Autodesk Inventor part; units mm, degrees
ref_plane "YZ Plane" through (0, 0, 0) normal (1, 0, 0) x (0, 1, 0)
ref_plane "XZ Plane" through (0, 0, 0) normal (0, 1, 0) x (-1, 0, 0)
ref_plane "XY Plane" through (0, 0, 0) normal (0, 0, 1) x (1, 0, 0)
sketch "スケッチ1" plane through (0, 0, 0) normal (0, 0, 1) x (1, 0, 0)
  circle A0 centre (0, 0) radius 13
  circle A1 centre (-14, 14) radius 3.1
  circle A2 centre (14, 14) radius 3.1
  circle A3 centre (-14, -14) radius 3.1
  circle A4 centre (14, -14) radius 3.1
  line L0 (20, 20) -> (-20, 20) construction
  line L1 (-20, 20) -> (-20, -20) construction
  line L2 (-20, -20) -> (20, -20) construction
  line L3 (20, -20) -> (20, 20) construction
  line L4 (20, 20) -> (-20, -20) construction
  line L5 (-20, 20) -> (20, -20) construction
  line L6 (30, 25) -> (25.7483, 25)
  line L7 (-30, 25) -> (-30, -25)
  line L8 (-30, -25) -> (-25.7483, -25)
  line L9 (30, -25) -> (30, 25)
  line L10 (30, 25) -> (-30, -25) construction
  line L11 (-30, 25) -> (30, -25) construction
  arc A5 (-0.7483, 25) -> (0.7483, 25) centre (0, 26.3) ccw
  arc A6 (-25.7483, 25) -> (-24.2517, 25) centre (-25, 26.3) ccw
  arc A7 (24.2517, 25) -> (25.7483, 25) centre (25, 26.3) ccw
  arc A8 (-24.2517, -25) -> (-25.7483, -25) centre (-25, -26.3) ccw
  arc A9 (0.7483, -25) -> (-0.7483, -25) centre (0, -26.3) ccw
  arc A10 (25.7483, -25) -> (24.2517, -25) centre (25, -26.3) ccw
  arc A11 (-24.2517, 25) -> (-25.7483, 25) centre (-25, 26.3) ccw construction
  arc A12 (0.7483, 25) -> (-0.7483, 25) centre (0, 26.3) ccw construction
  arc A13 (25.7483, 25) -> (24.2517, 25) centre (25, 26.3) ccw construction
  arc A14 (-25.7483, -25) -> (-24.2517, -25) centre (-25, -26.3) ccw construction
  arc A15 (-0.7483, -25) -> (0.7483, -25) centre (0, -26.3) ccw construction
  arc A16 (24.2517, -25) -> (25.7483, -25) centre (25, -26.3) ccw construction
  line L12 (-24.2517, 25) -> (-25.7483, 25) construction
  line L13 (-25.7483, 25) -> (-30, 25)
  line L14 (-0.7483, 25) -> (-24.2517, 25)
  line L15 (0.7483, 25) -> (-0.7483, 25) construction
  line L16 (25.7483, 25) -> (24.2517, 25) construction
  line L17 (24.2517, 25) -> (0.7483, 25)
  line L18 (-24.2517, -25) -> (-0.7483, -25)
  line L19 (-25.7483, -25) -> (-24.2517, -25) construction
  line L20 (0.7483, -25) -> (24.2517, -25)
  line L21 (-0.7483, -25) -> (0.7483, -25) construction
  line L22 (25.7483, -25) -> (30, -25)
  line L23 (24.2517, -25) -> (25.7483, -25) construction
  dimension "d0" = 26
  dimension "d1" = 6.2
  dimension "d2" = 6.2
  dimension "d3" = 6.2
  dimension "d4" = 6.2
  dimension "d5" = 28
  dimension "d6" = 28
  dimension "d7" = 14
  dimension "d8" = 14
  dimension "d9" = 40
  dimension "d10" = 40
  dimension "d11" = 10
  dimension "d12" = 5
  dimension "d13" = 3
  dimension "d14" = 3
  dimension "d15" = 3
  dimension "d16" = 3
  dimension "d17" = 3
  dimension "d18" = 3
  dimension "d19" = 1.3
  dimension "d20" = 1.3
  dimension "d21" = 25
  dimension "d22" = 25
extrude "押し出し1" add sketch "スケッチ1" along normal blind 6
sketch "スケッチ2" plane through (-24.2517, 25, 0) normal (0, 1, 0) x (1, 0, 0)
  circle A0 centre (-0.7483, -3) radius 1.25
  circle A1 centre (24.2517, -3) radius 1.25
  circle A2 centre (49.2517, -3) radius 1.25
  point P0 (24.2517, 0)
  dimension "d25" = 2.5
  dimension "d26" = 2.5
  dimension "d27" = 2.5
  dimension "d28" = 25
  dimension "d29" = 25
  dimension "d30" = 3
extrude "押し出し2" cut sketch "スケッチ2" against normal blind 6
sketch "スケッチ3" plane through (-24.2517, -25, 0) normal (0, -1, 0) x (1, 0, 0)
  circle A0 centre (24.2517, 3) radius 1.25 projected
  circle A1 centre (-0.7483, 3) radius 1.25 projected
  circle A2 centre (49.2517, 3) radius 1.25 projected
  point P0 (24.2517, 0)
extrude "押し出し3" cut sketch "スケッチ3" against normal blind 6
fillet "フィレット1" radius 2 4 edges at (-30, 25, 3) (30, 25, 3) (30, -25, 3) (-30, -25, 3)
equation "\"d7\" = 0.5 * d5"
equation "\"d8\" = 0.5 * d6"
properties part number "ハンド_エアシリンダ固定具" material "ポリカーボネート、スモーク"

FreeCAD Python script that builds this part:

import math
import FreeCAD as App
import Part
import Sketcher
from FreeCAD import Vector


def edges_at(feature, points):
    """Names of the edges that pass closest to the given points."""
    edges = feature.Shape.Edges
    near = lambda p: min(range(len(edges)), key=lambda i: edges[i].distToShape(Part.Vertex(*p))[0])
    return sorted({f"Edge{near(p) + 1}" for p in points})

doc = App.newDocument("Part")
body = doc.addObject("PartDesign::Body", "Body")

# Sketch on XY plane
sketch1 = body.newObject("Sketcher::SketchObject", "Sketch")
sketch1.AttachmentSupport = (doc.getObject("XY_Plane"), [""])
sketch1.MapMode = "FlatFace"
sketch1.addGeometry([
    Part.LineSegment(Vector(30, -25, 0), Vector(30, 25, 0)),  # 0
    Part.LineSegment(Vector(30, 25, 0), Vector(25.7483, 25, 0)),  # 1
    Part.ArcOfCircle(Part.Circle(Vector(25, 26.3, 0), Vector(0, 0, 1), 1.499984), math.radians(-119.925393), math.radians(-60.074607)),  # 2
    Part.LineSegment(Vector(24.2517, 25, 0), Vector(0.7483, 25, 0)),  # 3
    Part.ArcOfCircle(Part.Circle(Vector(0, 26.3, 0), Vector(0, 0, 1), 1.499984), math.radians(-119.925393), math.radians(-60.074607)),  # 4
    Part.LineSegment(Vector(-0.7483, 25, 0), Vector(-24.2517, 25, 0)),  # 5
    Part.ArcOfCircle(Part.Circle(Vector(-25, 26.3, 0), Vector(0, 0, 1), 1.499984), math.radians(-119.925393), math.radians(-60.074607)),  # 6
    Part.LineSegment(Vector(-25.7483, 25, 0), Vector(-30, 25, 0)),  # 7
    Part.LineSegment(Vector(-30, 25, 0), Vector(-30, -25, 0)),  # 8
    Part.LineSegment(Vector(-30, -25, 0), Vector(-25.7483, -25, 0)),  # 9
    Part.ArcOfCircle(Part.Circle(Vector(-25, -26.3, 0), Vector(0, 0, 1), 1.499984), math.radians(60.074607), math.radians(119.925393)),  # 10
    Part.LineSegment(Vector(-24.2517, -25, 0), Vector(-0.7483, -25, 0)),  # 11
    Part.ArcOfCircle(Part.Circle(Vector(0, -26.3, 0), Vector(0, 0, 1), 1.499984), math.radians(60.074607), math.radians(119.925393)),  # 12
    Part.LineSegment(Vector(0.7483, -25, 0), Vector(24.2517, -25, 0)),  # 13
    Part.ArcOfCircle(Part.Circle(Vector(25, -26.3, 0), Vector(0, 0, 1), 1.499984), math.radians(60.074607), math.radians(119.925393)),  # 14
    Part.LineSegment(Vector(25.7483, -25, 0), Vector(30, -25, 0)),  # 15
    Part.Circle(Vector(-14, -14, 0), Vector(0, 0, 1), 3.1),  # 16
    Part.Circle(Vector(14, -14, 0), Vector(0, 0, 1), 3.1),  # 17
    Part.Circle(Vector(-14, 14, 0), Vector(0, 0, 1), 3.1),  # 18
    Part.Circle(Vector(0, 0, 0), Vector(0, 0, 1), 13),  # 19
    Part.Circle(Vector(14, 14, 0), Vector(0, 0, 1), 3.1),  # 20
], False)
sketch1.addConstraint([
    Sketcher.Constraint("Coincident", 0, 2, 1, 1),
    Sketcher.Constraint("Coincident", 1, 2, 2, 2),
    Sketcher.Constraint("Coincident", 2, 1, 3, 1),
    Sketcher.Constraint("Coincident", 3, 2, 4, 2),
    Sketcher.Constraint("Coincident", 4, 1, 5, 1),
    Sketcher.Constraint("Coincident", 5, 2, 6, 2),
    Sketcher.Constraint("Coincident", 6, 1, 7, 1),
    Sketcher.Constraint("Coincident", 7, 2, 8, 1),
    Sketcher.Constraint("Coincident", 8, 2, 9, 1),
    Sketcher.Constraint("Coincident", 9, 2, 10, 2),
    Sketcher.Constraint("Coincident", 10, 1, 11, 1),
    Sketcher.Constraint("Coincident", 11, 2, 12, 2),
    Sketcher.Constraint("Coincident", 12, 1, 13, 1),
    Sketcher.Constraint("Coincident", 13, 2, 14, 2),
    Sketcher.Constraint("Coincident", 14, 1, 15, 1),
    Sketcher.Constraint("Coincident", 15, 2, 0, 1),
    Sketcher.Constraint("Vertical", 0),
    Sketcher.Constraint("Horizontal", 1),
    Sketcher.Constraint("Horizontal", 3),
    Sketcher.Constraint("Horizontal", 5),
    Sketcher.Constraint("Horizontal", 7),
    Sketcher.Constraint("Vertical", 8),
    Sketcher.Constraint("Horizontal", 9),
    Sketcher.Constraint("Horizontal", 11),
    Sketcher.Constraint("Horizontal", 13),
    Sketcher.Constraint("Horizontal", 15),
    Sketcher.Constraint("Coincident", 19, 3, -1, 1),
    Sketcher.Constraint("Equal", 2, 4),
    Sketcher.Constraint("Equal", 4, 6),
    Sketcher.Constraint("Equal", 6, 10),
    Sketcher.Constraint("Equal", 10, 12),
    Sketcher.Constraint("Equal", 12, 14),
    Sketcher.Constraint("Equal", 16, 17),
    Sketcher.Constraint("Equal", 17, 18),
    Sketcher.Constraint("Equal", 18, 20),
    Sketcher.Constraint("Symmetric", 2, 3, 10, 3, -1, 1),
    Sketcher.Constraint("Symmetric", 4, 3, 12, 3, -1, 1),
    Sketcher.Constraint("Symmetric", 6, 3, 14, 3, -1, 1),
    Sketcher.Constraint("Symmetric", 17, 3, 18, 3, -1, 1),
    Sketcher.Constraint("Symmetric", 16, 3, 20, 3, -1, 1),
    Sketcher.Constraint("Symmetric", 0, 2, 8, 2, -1, 1),
    Sketcher.Constraint("Symmetric", 2, 3, 6, 3, -2),
    Sketcher.Constraint("Symmetric", 16, 3, 17, 3, -2),
    Sketcher.Constraint("Symmetric", 3, 2, 4, 1, -2),
    Sketcher.Constraint("Horizontal", 2, 3, 4, 3),
    Sketcher.Constraint("Horizontal", 1, 2, 2, 1),
    Sketcher.Constraint("Horizontal", 5, 2, 6, 1),
    Sketcher.Constraint("Horizontal", 9, 2, 10, 1),
    Sketcher.Constraint("Horizontal", 11, 2, 12, 1),
    Sketcher.Constraint("Horizontal", 13, 2, 14, 1),
    Sketcher.Constraint("Diameter", 19, 26.0),
    Sketcher.Constraint("Diameter", 16, 6.2),
    Sketcher.Constraint("Radius", 2, 1.5),
    Sketcher.Constraint("DistanceX", -1, 1, 2, 3, 25.0),
    Sketcher.Constraint("DistanceX", 16, 3, -1, 1, 14.0),
    Sketcher.Constraint("DistanceY", 16, 3, -1, 1, 14.0),
    Sketcher.Constraint("DistanceY", -1, 1, 0, 2, 25.0),
    Sketcher.Constraint("DistanceX", 2, 3, 0, 2, 5.0),
    Sketcher.Constraint("DistanceY", 0, 2, 2, 3, 1.3),
])
pad1 = body.newObject("PartDesign::Pad", "Pad")
pad1.Profile = sketch1
pad1.Length = 6

# Sketch on XZ plane
sketch2 = body.newObject("Sketcher::SketchObject", "Sketch001")
sketch2.AttachmentSupport = (doc.getObject("XZ_Plane"), [""])
sketch2.MapMode = "FlatFace"
sketch2.AttachmentOffset = App.Placement(Vector(0, 0, -25), App.Rotation())
sketch2.addGeometry([
    Part.Circle(Vector(-25, 3, 0), Vector(0, 0, 1), 1.25),
    Part.Circle(Vector(0, 3, 0), Vector(0, 0, 1), 1.25),
    Part.Circle(Vector(25, 3, 0), Vector(0, 0, 1), 1.25),
], False)
sketch2.addConstraint([
    Sketcher.Constraint("Equal", 0, 1),
    Sketcher.Constraint("Equal", 1, 2),
    Sketcher.Constraint("Symmetric", 0, 3, 2, 3, -2),
    Sketcher.Constraint("PointOnObject", 1, 3, -2),
    Sketcher.Constraint("Horizontal", 0, 3, 1, 3),
    Sketcher.Constraint("Diameter", 0, 2.5),
    Sketcher.Constraint("DistanceX", 0, 3, -1, 1, 25.0),
    Sketcher.Constraint("DistanceY", -1, 1, 0, 3, 3.0),
])
pocket1 = body.newObject("PartDesign::Pocket", "Pocket")
pocket1.Profile = sketch2
pocket1.Length = 6
pocket1.Reversed = True

# Sketch on XZ plane
sketch3 = body.newObject("Sketcher::SketchObject", "Sketch002")
sketch3.AttachmentSupport = (doc.getObject("XZ_Plane"), [""])
sketch3.MapMode = "FlatFace"
sketch3.AttachmentOffset = App.Placement(Vector(0, 0, 25), App.Rotation())
sketch3.addGeometry([
    Part.Circle(Vector(0, 3, 0), Vector(0, 0, 1), 1.25),
    Part.Circle(Vector(-25, 3, 0), Vector(0, 0, 1), 1.25),
    Part.Circle(Vector(25, 3, 0), Vector(0, 0, 1), 1.25),
], False)
sketch3.addConstraint([
    Sketcher.Constraint("Equal", 0, 1),
    Sketcher.Constraint("Equal", 1, 2),
    Sketcher.Constraint("Symmetric", 1, 3, 2, 3, -2),
    Sketcher.Constraint("PointOnObject", 0, 3, -2),
    Sketcher.Constraint("Horizontal", 0, 3, 1, 3),
    Sketcher.Constraint("Diameter", 0, 2.5),
    Sketcher.Constraint("DistanceY", -1, 1, 0, 3, 3.0),
    Sketcher.Constraint("DistanceX", 1, 3, -1, 1, 25.0),
])
pocket2 = body.newObject("PartDesign::Pocket", "Pocket001")
pocket2.Profile = sketch3
pocket2.Length = 6
doc.recompute()

fillet = body.newObject("PartDesign::Fillet", "Fillet")
fillet.Base = (pocket2, edges_at(pocket2, [
    (-30, 25, 3),
    (30, 25, 3),
    (30, -25, 3),
    (-30, -25, 3),
]))
fillet.Radius = 2

doc.recompute()
